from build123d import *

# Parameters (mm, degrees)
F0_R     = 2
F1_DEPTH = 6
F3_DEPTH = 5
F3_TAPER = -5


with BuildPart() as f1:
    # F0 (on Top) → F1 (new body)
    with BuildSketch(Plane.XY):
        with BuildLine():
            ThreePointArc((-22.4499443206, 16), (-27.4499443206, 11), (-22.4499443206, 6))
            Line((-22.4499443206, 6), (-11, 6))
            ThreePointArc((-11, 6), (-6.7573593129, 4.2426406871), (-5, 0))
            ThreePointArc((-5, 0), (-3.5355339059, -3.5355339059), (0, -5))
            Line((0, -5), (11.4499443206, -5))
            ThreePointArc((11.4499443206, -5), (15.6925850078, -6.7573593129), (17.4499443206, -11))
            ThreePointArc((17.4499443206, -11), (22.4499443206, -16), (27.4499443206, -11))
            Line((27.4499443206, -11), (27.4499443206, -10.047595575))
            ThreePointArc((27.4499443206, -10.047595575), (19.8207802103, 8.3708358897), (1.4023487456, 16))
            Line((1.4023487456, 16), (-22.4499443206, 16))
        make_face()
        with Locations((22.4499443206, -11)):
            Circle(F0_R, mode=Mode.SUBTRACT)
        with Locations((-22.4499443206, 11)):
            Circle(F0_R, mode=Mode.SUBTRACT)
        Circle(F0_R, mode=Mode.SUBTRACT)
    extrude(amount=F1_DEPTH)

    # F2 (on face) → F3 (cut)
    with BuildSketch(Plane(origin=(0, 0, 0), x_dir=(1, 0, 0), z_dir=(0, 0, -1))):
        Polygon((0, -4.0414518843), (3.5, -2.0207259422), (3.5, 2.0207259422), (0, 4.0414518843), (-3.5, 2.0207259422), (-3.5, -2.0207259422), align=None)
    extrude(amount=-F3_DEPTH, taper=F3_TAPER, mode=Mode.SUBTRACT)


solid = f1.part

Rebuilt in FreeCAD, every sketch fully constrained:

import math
import FreeCAD as App
import Part
import Sketcher

V = App.Vector
Q = App.Units.Quantity

doc = App.newDocument("Part")
body = doc.addObject("PartDesign::Body", "Body")

# Sketch on XY plane
sketch1 = body.newObject("Sketcher::SketchObject", "Sketch")
sketch1.AttachmentSupport = (doc.getObject("XY_Plane"), [""])
sketch1.MapMode = "FlatFace"
sketch1.addGeometry([
    Part.ArcOfCircle(Part.Circle(V(-22.4, 11, 0), V(0, 0, 1), 5), math.radians(90), math.radians(270)),  # 0
    Part.LineSegment(V(-22.4, 6, 0), V(-11, 6, 0)),  # 1
    Part.ArcOfCircle(Part.Circle(V(-11, 0, 0), V(0, 0, 1), 6), math.radians(0), math.radians(90)),  # 2
    Part.ArcOfCircle(Part.Circle(V(0, 0, 0), V(0, 0, 1), 5), math.radians(180), math.radians(270)),  # 3
    Part.LineSegment(V(0, -5, 0), V(11.4, -5, 0)),  # 4
    Part.ArcOfCircle(Part.Circle(V(11.4, -11, 0), V(0, 0, 1), 6), math.radians(0), math.radians(90)),  # 5
    Part.ArcOfCircle(Part.Circle(V(22.4, -11, 0), V(0, 0, 1), 5), math.radians(180), math.radians(360)),  # 6
    Part.LineSegment(V(27.4, -11, 0), V(27.4, -10, 0)),  # 7
    Part.ArcOfCircle(Part.Circle(V(1.4, -10, 0), V(0, 0, 1), 26), math.radians(0), math.radians(90)),  # 8
    Part.LineSegment(V(1.4, 16, 0), V(-22.4, 16, 0)),  # 9
    Part.Circle(V(22.4, -11, 0), V(0, 0, 1), 2),  # 10
    Part.Circle(V(0, 0, 0), V(0, 0, 1), 2),  # 11
    Part.Circle(V(-22.4, 11, 0), V(0, 0, 1), 2),  # 12
], False)
sketch1.addConstraint([
    Sketcher.Constraint("Tangent", 0, 2, 1, 1),
    Sketcher.Constraint("Tangent", 1, 2, 2, 2),
    Sketcher.Constraint("Tangent", 2, 1, 3, 1),
    Sketcher.Constraint("Tangent", 3, 2, 4, 1),
    Sketcher.Constraint("Tangent", 4, 2, 5, 2),
    Sketcher.Constraint("Tangent", 5, 1, 6, 1),
    Sketcher.Constraint("Tangent", 6, 2, 7, 1),
    Sketcher.Constraint("Tangent", 7, 2, 8, 1),
    Sketcher.Constraint("Tangent", 8, 2, 9, 1),
    Sketcher.Constraint("Tangent", 9, 2, 0, 1),
    Sketcher.Constraint("Horizontal", 1),
    Sketcher.Constraint("Horizontal", 4),
    Sketcher.Constraint("Vertical", 7),
    Sketcher.Constraint("Horizontal", 9),
    Sketcher.Constraint("Coincident", 3, 3, -1, 1),
    Sketcher.Constraint("Coincident", 11, 3, -1, 1),
    Sketcher.Constraint("Coincident", 10, 3, 6, 3),
    Sketcher.Constraint("Coincident", 12, 3, 0, 3),
    Sketcher.Constraint("Equal", 0, 3),
    Sketcher.Constraint("Equal", 2, 5),
    Sketcher.Constraint("Equal", 3, 6),
    Sketcher.Constraint("Equal", 10, 11),
    Sketcher.Constraint("Equal", 11, 12),
    Sketcher.Constraint("Symmetric", 0, 3, 6, 3, -1, 1),
    Sketcher.Constraint("PointOnObject", 2, 3, -1),
    Sketcher.Constraint("Diameter", 10, Q("4 mm")),
    Sketcher.Constraint("Radius", 0, Q("5 mm")),
    Sketcher.Constraint("Radius", 2, Q("6 mm")),
    Sketcher.Constraint("Radius", 8, Q("26.047596 mm")),
    Sketcher.Constraint("DistanceX", 1, 1, 1, 2, Q("11.449944 mm")),
])
pad1 = body.newObject("PartDesign::Pad", "Pad")
pad1.Profile = sketch1
pad1.Length = 6

# Sketch on XY plane
sketch2 = body.newObject("Sketcher::SketchObject", "Sketch001")
sketch2.AttachmentSupport = (doc.getObject("XY_Plane"), [""])
sketch2.MapMode = "FlatFace"
sketch2.addGeometry([
    Part.LineSegment(V(0, 4, 0), V(3.5, 2, 0)),  # 0
    Part.LineSegment(V(3.5, 2, 0), V(3.5, -2, 0)),  # 1
    Part.LineSegment(V(3.5, -2, 0), V(0, -4, 0)),  # 2
    Part.LineSegment(V(0, -4, 0), V(-3.5, -2, 0)),  # 3
    Part.LineSegment(V(-3.5, -2, 0), V(-3.5, 2, 0)),  # 4
    Part.LineSegment(V(-3.5, 2, 0), V(0, 4, 0)),  # 5
], False)
sketch2.addConstraint([
    Sketcher.Constraint("Coincident", 0, 2, 1, 1),
    Sketcher.Constraint("Coincident", 1, 2, 2, 1),
    Sketcher.Constraint("Coincident", 2, 2, 3, 1),
    Sketcher.Constraint("Coincident", 3, 2, 4, 1),
    Sketcher.Constraint("Coincident", 4, 2, 5, 1),
    Sketcher.Constraint("Coincident", 5, 2, 0, 1),
    Sketcher.Constraint("Vertical", 1),
    Sketcher.Constraint("Vertical", 4),
    Sketcher.Constraint("Symmetric", 0, 2, 3, 2, -1, 1),
    Sketcher.Constraint("Symmetric", 2, 2, 5, 2, -1, 1),
    Sketcher.Constraint("PointOnObject", 2, 2, -2),
    Sketcher.Constraint("Parallel", 2, 5),
    Sketcher.Constraint("Horizontal", 1, 2, 3, 2),
    Sketcher.Constraint("Angle", 0, Q("-30 deg")),
    Sketcher.Constraint("DistanceX", 3, 2, 1, 2, Q("7 mm")),
    Sketcher.Constraint("DistanceY", 1, 2, 1, 1, Q("4.041452 mm")),
])
pocket1 = body.newObject("PartDesign::Pocket", "Pocket")
pocket1.Profile = sketch2
pocket1.Length = 5
pocket1.Reversed = True
pocket1.TaperAngle = 5

doc.recompute()
